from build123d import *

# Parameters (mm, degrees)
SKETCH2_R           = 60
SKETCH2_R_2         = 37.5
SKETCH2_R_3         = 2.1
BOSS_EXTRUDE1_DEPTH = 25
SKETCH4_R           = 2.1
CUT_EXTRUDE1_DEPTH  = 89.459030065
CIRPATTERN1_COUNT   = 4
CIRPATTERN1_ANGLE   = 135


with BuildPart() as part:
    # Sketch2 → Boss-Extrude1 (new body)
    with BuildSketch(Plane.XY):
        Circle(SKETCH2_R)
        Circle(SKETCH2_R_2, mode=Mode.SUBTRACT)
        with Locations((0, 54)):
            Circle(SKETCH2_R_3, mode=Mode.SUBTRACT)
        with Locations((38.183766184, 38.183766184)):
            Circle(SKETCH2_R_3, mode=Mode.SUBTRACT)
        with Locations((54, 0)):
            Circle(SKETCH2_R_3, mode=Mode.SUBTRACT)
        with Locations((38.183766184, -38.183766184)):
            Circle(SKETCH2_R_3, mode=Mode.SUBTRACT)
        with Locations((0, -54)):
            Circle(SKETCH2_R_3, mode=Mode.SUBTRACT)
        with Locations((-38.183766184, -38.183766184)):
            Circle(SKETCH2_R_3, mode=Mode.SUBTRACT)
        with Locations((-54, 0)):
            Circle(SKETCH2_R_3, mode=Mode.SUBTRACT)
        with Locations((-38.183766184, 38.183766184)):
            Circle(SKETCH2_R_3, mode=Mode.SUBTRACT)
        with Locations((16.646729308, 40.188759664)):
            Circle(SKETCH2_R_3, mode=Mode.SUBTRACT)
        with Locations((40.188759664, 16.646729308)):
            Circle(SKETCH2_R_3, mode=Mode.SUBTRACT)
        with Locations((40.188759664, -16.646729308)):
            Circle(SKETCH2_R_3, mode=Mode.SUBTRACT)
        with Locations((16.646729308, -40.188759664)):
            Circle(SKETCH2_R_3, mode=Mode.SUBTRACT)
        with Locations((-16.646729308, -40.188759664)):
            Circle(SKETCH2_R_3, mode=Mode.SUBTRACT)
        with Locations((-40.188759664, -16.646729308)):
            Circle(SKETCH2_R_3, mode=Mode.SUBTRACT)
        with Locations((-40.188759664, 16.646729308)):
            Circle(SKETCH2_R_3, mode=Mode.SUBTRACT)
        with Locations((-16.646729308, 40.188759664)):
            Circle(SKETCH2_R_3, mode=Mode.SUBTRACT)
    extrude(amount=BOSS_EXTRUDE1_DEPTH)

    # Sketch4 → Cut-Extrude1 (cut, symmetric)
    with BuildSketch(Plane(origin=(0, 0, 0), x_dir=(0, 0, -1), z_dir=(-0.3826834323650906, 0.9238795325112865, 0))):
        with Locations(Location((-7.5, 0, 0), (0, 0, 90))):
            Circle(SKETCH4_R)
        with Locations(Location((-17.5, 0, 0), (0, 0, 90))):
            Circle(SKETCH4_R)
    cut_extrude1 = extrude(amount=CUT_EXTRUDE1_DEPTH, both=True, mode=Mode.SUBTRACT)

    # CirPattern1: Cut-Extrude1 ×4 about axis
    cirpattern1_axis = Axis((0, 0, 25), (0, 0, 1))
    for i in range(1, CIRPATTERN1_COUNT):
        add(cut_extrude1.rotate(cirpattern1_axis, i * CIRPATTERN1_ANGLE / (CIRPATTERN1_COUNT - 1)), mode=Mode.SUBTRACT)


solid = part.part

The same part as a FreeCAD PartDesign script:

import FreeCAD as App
import Part
import Sketcher

V = App.Vector
Q = App.Units.Quantity

doc = App.newDocument("Part")
body = doc.addObject("PartDesign::Body", "Body")

sketch1 = body.newObject("Sketcher::SketchObject", "Sketch")
sketch1.AttachmentSupport = (doc.getObject("XY_Plane"), [""])
sketch1.MapMode = "FlatFace"
sketch1.addGeometry(Part.Circle(V(0, 0, 0), V(0, 0, 1), 60), False)
sketch1.addGeometry(Part.Circle(V(-38.183766, -38.183766, 0), V(0, 0, 1), 2.1), False)
sketch1.addGeometry(Part.Circle(V(-16.646729, -40.18876, 0), V(0, 0, 1), 2.1), False)
sketch1.addGeometry(Part.Circle(V(-40.18876, -16.646729, 0), V(0, 0, 1), 2.1), False)
sketch1.addGeometry(Part.Circle(V(0, -54, 0), V(0, 0, 1), 2.1), False)
sketch1.addGeometry(Part.Circle(V(16.646729, -40.18876, 0), V(0, 0, 1), 2.1), False)
sketch1.addGeometry(Part.Circle(V(38.183766, -38.183766, 0), V(0, 0, 1), 2.1), False)
sketch1.addGeometry(Part.Circle(V(40.18876, -16.646729, 0), V(0, 0, 1), 2.1), False)
sketch1.addGeometry(Part.Circle(V(-54, 0, 0), V(0, 0, 1), 2.1), False)
sketch1.addGeometry(Part.Circle(V(-40.18876, 16.646729, 0), V(0, 0, 1), 2.1), False)
sketch1.addGeometry(Part.Circle(V(-38.183766, 38.183766, 0), V(0, 0, 1), 2.1), False)
sketch1.addGeometry(Part.Circle(V(-16.646729, 40.18876, 0), V(0, 0, 1), 2.1), False)
sketch1.addGeometry(Part.Circle(V(0, 0, 0), V(0, 0, 1), 37.5), False)
sketch1.addGeometry(Part.Circle(V(54, 0, 0), V(0, 0, 1), 2.1), False)
sketch1.addGeometry(Part.Circle(V(40.18876, 16.646729, 0), V(0, 0, 1), 2.1), False)
sketch1.addGeometry(Part.Circle(V(16.646729, 40.18876, 0), V(0, 0, 1), 2.1), False)
sketch1.addGeometry(Part.Circle(V(0, 54, 0), V(0, 0, 1), 2.1), False)
sketch1.addGeometry(Part.Circle(V(38.183766, 38.183766, 0), V(0, 0, 1), 2.1), False)
sketch1.addConstraint(Sketcher.Constraint("Coincident", 0, 3, -1, 1))
sketch1.addConstraint(Sketcher.Constraint("Coincident", 12, 3, -1, 1))
sketch1.addConstraint(Sketcher.Constraint("Equal", 1, 2))
sketch1.addConstraint(Sketcher.Constraint("Equal", 2, 3))
sketch1.addConstraint(Sketcher.Constraint("Equal", 3, 4))
sketch1.addConstraint(Sketcher.Constraint("Equal", 4, 5))
sketch1.addConstraint(Sketcher.Constraint("Equal", 5, 6))
sketch1.addConstraint(Sketcher.Constraint("Equal", 6, 7))
sketch1.addConstraint(Sketcher.Constraint("Equal", 7, 8))
sketch1.addConstraint(Sketcher.Constraint("Equal", 8, 9))
sketch1.addConstraint(Sketcher.Constraint("Equal", 9, 10))
sketch1.addConstraint(Sketcher.Constraint("Equal", 10, 11))
sketch1.addConstraint(Sketcher.Constraint("Equal", 11, 13))
sketch1.addConstraint(Sketcher.Constraint("Equal", 13, 14))
sketch1.addConstraint(Sketcher.Constraint("Equal", 14, 15))
sketch1.addConstraint(Sketcher.Constraint("Equal", 15, 16))
sketch1.addConstraint(Sketcher.Constraint("Equal", 16, 17))
sketch1.addConstraint(Sketcher.Constraint("Symmetric", 7, 3, 9, 3, -1, 1))
sketch1.addConstraint(Sketcher.Constraint("Symmetric", 6, 3, 10, 3, -1, 1))
sketch1.addConstraint(Sketcher.Constraint("Symmetric", 5, 3, 11, 3, -1, 1))
sketch1.addConstraint(Sketcher.Constraint("Symmetric", 8, 3, 13, 3, -1, 1))
sketch1.addConstraint(Sketcher.Constraint("Symmetric", 3, 3, 14, 3, -1, 1))
sketch1.addConstraint(Sketcher.Constraint("Symmetric", 2, 3, 15, 3, -1, 1))
sketch1.addConstraint(Sketcher.Constraint("Symmetric", 4, 3, 16, 3, -1, 1))
sketch1.addConstraint(Sketcher.Constraint("Symmetric", 1, 3, 17, 3, -1, 1))
sketch1.addConstraint(Sketcher.Constraint("Symmetric", 2, 3, 5, 3, -2))
sketch1.addConstraint(Sketcher.Constraint("Symmetric", 1, 3, 6, 3, -2))
sketch1.addConstraint(Sketcher.Constraint("Symmetric", 3, 3, 7, 3, -2))
sketch1.addConstraint(Sketcher.Constraint("PointOnObject", 4, 3, -2))
sketch1.addConstraint(Sketcher.Constraint("PointOnObject", 8, 3, -1))
sketch1.addConstraint(Sketcher.Constraint("Diameter", 0, Q("120 mm")))
sketch1.addConstraint(Sketcher.Constraint("Diameter", 12, Q("75 mm")))
sketch1.addConstraint(Sketcher.Constraint("Diameter", 1, Q("4.2 mm")))
sketch1.addConstraint(Sketcher.Constraint("DistanceY", 4, 3, -1, 1, Q("54 mm")))
sketch1.addConstraint(Sketcher.Constraint("DistanceX", 8, 3, -1, 1, Q("54 mm")))
sketch1.addConstraint(Sketcher.Constraint("DistanceX", 2, 3, -1, 1, Q("16.646729 mm")))
sketch1.addConstraint(Sketcher.Constraint("DistanceY", 2, 3, -1, 1, Q("40.18876 mm")))
sketch1.addConstraint(Sketcher.Constraint("DistanceX", 3, 3, -1, 1, Q("40.18876 mm")))
sketch1.addConstraint(Sketcher.Constraint("DistanceY", 3, 3, -1, 1, Q("16.646729 mm")))
sketch1.addConstraint(Sketcher.Constraint("DistanceX", 1, 3, -1, 1, Q("38.183766 mm")))
sketch1.addConstraint(Sketcher.Constraint("DistanceY", 1, 3, -1, 1, Q("38.183766 mm")))
pad1 = body.newObject("PartDesign::Pad", "Pad")
pad1.Profile = sketch1
pad1.Length = 25

sketch2 = body.newObject("Sketcher::SketchObject", "Sketch001")
sketch2.Placement = App.Placement(V(0, 0, 0), App.Rotation(V(0, 0, -1), V(-0.923879533, -0.382683432, 0), V(-0.382683432, 0.923879533, 0), "ZXY"))
sketch2.addGeometry(Part.Circle(V(-7.5, 0, 0), V(0, 0, 1), 2.1), False)
sketch2.addGeometry(Part.Circle(V(-17.5, 0, 0), V(0, 0, 1), 2.1), False)
sketch2.addConstraint(Sketcher.Constraint("Equal", 0, 1))
sketch2.addConstraint(Sketcher.Constraint("PointOnObject", 0, 3, -1))
sketch2.addConstraint(Sketcher.Constraint("PointOnObject", 1, 3, -1))
sketch2.addConstraint(Sketcher.Constraint("Diameter", 0, Q("4.2 mm")))
sketch2.addConstraint(Sketcher.Constraint("DistanceX", 1, 3, 0, 3, Q("10 mm")))
sketch2.addConstraint(Sketcher.Constraint("DistanceX", 0, 3, -1, 1, Q("7.5 mm")))
pocket1 = body.newObject("PartDesign::Pocket", "Pocket")
pocket1.Profile = sketch2
pocket1.Length = 178.91806
pocket1.Midplane = True
doc.recompute()

polarpattern = body.newObject("PartDesign::PolarPattern", "PolarPattern")
polarpattern.Originals = [pocket1]
polarpattern.Axis = (doc.getObject("Z_Axis"), [""])
polarpattern.Angle = 135
polarpattern.Occurrences = 4
body.Tip = polarpattern

doc.recompute()
